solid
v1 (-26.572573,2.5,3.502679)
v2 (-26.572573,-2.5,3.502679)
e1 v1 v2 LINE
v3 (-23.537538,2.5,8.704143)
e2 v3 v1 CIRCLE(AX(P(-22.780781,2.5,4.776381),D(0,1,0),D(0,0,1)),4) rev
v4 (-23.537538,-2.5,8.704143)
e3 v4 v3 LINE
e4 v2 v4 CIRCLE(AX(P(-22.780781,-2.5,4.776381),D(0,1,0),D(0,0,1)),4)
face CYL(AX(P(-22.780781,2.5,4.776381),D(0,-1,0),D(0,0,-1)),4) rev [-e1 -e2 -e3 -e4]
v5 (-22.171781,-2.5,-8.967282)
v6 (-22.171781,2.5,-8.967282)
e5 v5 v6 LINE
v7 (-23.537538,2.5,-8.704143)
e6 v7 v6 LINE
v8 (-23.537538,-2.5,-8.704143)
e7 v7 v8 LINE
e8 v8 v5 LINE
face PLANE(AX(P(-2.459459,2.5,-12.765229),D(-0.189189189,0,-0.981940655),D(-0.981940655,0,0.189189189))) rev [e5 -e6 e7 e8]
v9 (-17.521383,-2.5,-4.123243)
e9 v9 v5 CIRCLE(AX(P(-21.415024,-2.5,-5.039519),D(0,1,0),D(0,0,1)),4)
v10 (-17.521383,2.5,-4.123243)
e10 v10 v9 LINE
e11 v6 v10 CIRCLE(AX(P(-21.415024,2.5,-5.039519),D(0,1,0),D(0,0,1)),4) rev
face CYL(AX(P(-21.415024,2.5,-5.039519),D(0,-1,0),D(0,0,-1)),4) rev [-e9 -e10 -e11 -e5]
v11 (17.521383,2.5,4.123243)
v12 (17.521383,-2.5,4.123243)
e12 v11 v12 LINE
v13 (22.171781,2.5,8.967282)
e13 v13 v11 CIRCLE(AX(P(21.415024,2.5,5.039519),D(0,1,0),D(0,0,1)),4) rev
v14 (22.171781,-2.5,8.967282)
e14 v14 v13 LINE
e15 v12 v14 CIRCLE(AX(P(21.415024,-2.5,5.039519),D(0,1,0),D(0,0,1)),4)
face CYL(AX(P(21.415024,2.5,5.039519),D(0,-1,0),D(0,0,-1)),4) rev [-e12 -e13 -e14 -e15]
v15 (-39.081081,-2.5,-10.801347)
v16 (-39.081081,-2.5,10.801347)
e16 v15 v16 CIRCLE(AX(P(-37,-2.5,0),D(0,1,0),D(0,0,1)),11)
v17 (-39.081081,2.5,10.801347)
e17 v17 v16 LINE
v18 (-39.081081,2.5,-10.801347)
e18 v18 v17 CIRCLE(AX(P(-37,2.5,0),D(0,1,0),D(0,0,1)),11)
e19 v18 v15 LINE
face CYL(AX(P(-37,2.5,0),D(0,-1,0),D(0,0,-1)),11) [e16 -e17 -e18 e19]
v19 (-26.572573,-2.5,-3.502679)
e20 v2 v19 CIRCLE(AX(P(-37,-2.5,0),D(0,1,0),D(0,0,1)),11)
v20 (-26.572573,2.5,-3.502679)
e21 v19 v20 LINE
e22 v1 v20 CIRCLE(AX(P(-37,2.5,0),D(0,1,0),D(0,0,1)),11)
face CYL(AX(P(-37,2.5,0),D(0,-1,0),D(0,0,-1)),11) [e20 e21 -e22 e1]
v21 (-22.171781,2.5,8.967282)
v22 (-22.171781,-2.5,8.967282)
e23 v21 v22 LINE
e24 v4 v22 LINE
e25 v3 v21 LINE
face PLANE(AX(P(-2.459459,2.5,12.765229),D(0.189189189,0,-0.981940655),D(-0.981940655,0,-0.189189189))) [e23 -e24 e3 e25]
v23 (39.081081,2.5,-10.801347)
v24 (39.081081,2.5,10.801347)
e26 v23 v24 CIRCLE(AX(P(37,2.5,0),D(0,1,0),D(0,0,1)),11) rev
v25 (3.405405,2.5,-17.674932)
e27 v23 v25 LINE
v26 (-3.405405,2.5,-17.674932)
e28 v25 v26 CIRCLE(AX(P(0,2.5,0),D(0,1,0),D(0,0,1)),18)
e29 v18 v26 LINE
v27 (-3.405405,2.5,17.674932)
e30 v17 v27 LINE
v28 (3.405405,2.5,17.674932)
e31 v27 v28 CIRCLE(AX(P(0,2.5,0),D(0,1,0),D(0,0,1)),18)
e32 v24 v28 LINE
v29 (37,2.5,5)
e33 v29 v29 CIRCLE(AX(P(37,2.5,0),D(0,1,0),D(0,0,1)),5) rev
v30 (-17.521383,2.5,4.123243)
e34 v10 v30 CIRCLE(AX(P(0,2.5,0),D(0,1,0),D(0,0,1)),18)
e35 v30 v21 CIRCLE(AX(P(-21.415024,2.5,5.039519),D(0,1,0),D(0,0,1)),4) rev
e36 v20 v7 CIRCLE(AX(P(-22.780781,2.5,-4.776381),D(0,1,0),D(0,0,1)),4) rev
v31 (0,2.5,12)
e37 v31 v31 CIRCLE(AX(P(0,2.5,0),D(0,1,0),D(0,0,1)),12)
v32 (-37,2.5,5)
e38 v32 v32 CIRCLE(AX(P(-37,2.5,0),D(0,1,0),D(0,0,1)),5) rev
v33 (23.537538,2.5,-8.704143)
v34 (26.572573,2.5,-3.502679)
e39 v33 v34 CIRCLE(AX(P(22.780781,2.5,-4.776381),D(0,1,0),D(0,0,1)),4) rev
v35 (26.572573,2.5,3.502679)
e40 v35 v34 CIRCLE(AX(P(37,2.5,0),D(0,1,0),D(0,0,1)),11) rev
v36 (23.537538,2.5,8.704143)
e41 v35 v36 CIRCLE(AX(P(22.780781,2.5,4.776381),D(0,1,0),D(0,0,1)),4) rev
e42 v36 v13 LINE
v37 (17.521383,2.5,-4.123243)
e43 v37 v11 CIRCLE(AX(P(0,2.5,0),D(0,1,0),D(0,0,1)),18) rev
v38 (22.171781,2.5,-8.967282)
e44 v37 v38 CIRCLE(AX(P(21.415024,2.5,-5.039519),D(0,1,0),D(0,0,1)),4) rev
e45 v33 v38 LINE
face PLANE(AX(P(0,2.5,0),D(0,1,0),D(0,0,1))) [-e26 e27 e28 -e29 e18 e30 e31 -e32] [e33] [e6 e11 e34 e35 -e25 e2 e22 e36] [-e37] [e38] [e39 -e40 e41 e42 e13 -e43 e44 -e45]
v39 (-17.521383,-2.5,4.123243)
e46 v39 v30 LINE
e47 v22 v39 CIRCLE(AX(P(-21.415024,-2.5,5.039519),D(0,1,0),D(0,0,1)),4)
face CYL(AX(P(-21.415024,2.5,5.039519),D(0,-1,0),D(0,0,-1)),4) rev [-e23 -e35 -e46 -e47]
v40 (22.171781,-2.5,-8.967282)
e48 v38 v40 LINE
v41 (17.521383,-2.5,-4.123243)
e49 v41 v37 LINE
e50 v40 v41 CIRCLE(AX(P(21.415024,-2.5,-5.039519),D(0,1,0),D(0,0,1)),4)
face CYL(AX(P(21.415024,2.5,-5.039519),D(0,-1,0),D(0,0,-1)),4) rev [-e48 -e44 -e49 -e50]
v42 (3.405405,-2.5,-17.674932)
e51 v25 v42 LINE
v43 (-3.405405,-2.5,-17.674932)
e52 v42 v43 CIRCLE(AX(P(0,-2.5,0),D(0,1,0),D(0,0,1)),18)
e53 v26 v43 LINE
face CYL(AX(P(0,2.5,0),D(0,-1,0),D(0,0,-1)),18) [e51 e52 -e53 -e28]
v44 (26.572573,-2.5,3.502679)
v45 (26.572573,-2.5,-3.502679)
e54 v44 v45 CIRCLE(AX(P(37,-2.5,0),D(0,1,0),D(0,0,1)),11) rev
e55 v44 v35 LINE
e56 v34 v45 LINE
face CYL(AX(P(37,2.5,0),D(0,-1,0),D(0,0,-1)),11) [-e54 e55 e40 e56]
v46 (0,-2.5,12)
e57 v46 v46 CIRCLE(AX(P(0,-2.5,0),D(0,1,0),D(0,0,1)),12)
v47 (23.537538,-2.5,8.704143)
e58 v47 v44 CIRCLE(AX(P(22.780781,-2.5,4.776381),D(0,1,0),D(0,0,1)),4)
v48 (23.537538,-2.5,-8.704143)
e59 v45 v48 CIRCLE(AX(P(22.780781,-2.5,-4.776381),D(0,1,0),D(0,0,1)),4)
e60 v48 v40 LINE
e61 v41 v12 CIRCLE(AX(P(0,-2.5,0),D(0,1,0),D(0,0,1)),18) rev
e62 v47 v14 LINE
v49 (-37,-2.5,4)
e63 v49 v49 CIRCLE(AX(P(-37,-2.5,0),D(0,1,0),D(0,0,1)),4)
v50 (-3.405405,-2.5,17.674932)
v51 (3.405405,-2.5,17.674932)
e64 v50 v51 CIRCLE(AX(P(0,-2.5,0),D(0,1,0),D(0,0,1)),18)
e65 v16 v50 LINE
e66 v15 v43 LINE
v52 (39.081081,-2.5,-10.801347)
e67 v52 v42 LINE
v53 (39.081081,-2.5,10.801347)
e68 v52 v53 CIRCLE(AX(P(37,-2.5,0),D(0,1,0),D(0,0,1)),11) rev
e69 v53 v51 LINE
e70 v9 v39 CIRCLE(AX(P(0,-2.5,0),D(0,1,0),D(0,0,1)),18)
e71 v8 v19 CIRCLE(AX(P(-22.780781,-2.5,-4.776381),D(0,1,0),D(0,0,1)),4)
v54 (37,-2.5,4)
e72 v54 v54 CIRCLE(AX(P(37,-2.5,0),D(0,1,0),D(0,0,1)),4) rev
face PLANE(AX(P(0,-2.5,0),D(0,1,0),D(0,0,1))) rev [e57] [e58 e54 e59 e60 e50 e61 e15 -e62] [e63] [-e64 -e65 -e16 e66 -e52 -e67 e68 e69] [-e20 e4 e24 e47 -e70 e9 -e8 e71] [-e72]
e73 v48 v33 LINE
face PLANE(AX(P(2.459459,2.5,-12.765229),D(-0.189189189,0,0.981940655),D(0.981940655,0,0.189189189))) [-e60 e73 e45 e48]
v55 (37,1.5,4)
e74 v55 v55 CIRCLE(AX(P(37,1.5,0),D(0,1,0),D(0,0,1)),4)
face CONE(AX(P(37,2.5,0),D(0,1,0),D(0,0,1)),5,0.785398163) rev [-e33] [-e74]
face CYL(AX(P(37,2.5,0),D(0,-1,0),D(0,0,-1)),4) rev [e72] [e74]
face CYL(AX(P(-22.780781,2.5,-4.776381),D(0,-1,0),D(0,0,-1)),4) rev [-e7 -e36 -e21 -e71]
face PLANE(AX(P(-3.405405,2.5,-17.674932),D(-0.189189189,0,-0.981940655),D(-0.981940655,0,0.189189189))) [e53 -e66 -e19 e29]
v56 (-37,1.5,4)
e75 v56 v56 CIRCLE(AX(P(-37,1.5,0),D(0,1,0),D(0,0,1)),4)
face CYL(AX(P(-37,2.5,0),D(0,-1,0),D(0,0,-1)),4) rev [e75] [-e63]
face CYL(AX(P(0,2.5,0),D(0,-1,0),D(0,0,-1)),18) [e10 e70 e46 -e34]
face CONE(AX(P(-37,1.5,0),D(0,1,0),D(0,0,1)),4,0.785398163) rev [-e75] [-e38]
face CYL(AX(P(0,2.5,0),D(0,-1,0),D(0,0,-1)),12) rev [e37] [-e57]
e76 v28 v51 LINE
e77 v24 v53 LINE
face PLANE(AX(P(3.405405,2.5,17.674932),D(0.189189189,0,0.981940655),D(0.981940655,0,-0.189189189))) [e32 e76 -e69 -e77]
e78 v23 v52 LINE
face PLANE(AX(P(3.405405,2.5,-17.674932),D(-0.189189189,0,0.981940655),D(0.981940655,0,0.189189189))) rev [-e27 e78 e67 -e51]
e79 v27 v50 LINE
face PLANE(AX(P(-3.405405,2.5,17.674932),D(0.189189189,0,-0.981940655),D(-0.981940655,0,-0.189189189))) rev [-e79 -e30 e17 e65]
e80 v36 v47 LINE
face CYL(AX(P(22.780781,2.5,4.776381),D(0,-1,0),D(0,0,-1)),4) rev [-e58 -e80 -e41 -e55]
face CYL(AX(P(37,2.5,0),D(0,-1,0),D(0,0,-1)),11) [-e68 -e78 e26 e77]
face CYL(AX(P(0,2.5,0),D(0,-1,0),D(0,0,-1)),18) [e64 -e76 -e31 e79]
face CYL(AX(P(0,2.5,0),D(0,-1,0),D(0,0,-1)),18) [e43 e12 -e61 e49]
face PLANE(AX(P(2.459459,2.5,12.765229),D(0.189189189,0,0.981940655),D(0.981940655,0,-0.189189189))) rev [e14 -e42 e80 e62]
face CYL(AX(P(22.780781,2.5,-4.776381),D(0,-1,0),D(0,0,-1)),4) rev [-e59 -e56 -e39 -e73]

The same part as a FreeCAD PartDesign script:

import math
import FreeCAD as App
import Part
import Sketcher


def edges_at(feature, points):
    """Names of the edges that pass closest to the given points."""
    edges = feature.Shape.Edges
    near = lambda p: min(range(len(edges)), key=lambda i: edges[i].distToShape(Part.Vertex(*p))[0])
    return sorted({f"Edge{near(p) + 1}" for p in points})

doc = App.newDocument("Part")
body = doc.addObject("PartDesign::Body", "Body")

sketch1 = doc.addObject("Sketcher::SketchObject", "Sketch")
body.addObject(sketch1)
sketch1.AttachmentSupport = (doc.XZ_Plane, [""])
sketch1.MapMode = "FlatFace"
sketch1.addGeometry([
    Part.LineSegment(App.Vector(39.1, -10.8, 0), App.Vector(3.4, -17.7, 0)),
    Part.ArcOfCircle(Part.Circle(App.Vector(0, 0, 0), App.Vector(0, 0, 1), 18), math.radians(-101), math.radians(-79)),
    Part.LineSegment(App.Vector(-3.4, -17.7, 0), App.Vector(-39.1, -10.8, 0)),
    Part.ArcOfCircle(Part.Circle(App.Vector(-37, 0, 0), App.Vector(0, 0, 1), 11), math.radians(101), math.radians(259)),
    Part.LineSegment(App.Vector(-39.1, 10.8, 0), App.Vector(-3.4, 17.7, 0)),
    Part.ArcOfCircle(Part.Circle(App.Vector(0, 0, 0), App.Vector(0, 0, 1), 18), math.radians(79), math.radians(101)),
    Part.LineSegment(App.Vector(3.4, 17.7, 0), App.Vector(39.1, 10.8, 0)),
    Part.ArcOfCircle(Part.Circle(App.Vector(37, 0, 0), App.Vector(0, 0, 1), 11), math.radians(-79), math.radians(79)),
    Part.Circle(App.Vector(-37, 0, 0), App.Vector(0, 0, 1), 4),
    Part.LineSegment(App.Vector(-14.7, 10.4, 0), App.Vector(-29.1, 7.6, 0)),
    Part.ArcOfCircle(Part.Circle(App.Vector(-37, 0, 0), App.Vector(0, 0, 1), 11), math.radians(-44), math.radians(44)),
    Part.LineSegment(App.Vector(-29.1, -7.6, 0), App.Vector(-14.7, -10.4, 0)),
    Part.ArcOfCircle(Part.Circle(App.Vector(0, 0, 0), App.Vector(0, 0, 1), 18), math.radians(145), math.radians(215)),
    Part.Circle(App.Vector(0, 0, 0), App.Vector(0, 0, 1), 12),
    Part.ArcOfCircle(Part.Circle(App.Vector(0, 0, 0), App.Vector(0, 0, 1), 18), math.radians(-35), math.radians(35)),
    Part.LineSegment(App.Vector(14.7, -10.4, 0), App.Vector(29.1, -7.6, 0)),
    Part.ArcOfCircle(Part.Circle(App.Vector(37, 0, 0), App.Vector(0, 0, 1), 11), math.radians(136), math.radians(224)),
    Part.LineSegment(App.Vector(29.1, 7.6, 0), App.Vector(14.7, 10.4, 0)),
    Part.Circle(App.Vector(37, 0, 0), App.Vector(0, 0, 1), 4),
], False)
sketch1.addConstraint([
    Sketcher.Constraint("Tangent", 0, 2, 1, 2),
    Sketcher.Constraint("Tangent", 1, 1, 2, 1),
    Sketcher.Constraint("Tangent", 2, 2, 3, 2),
    Sketcher.Constraint("Tangent", 3, 1, 4, 1),
    Sketcher.Constraint("Tangent", 4, 2, 5, 2),
    Sketcher.Constraint("Tangent", 5, 1, 6, 1),
    Sketcher.Constraint("Tangent", 6, 2, 7, 2),
    Sketcher.Constraint("Tangent", 7, 1, 0, 1),
    Sketcher.Constraint("Coincident", 9, 2, 10, 2),
    Sketcher.Constraint("Coincident", 10, 1, 11, 1),
    Sketcher.Constraint("Coincident", 11, 2, 12, 2),
    Sketcher.Constraint("Coincident", 12, 1, 9, 1),
    Sketcher.Constraint("Coincident", 14, 1, 15, 1),
    Sketcher.Constraint("Coincident", 15, 2, 16, 2),
    Sketcher.Constraint("Coincident", 16, 1, 17, 1),
    Sketcher.Constraint("Coincident", 17, 2, 14, 2),
    Sketcher.Constraint("Coincident", 1, 3, -1, 1),
    Sketcher.Constraint("Coincident", 5, 3, -1, 1),
    Sketcher.Constraint("Coincident", 12, 3, -1, 1),
    Sketcher.Constraint("Coincident", 13, 3, -1, 1),
    Sketcher.Constraint("Coincident", 14, 3, -1, 1),
    Sketcher.Constraint("Coincident", 8, 3, 3, 3),
    Sketcher.Constraint("Coincident", 10, 3, 3, 3),
    Sketcher.Constraint("Coincident", 16, 3, 7, 3),
    Sketcher.Constraint("Coincident", 18, 3, 7, 3),
    Sketcher.Constraint("Equal", 1, 5),
    Sketcher.Constraint("Equal", 3, 7),
    Sketcher.Constraint("Equal", 7, 10),
    Sketcher.Constraint("Equal", 5, 12),
    Sketcher.Constraint("Equal", 12, 14),
    Sketcher.Constraint("Equal", 10, 16),
    Sketcher.Constraint("Equal", 8, 18),
    Sketcher.Constraint("Symmetric", 3, 3, 7, 3, -1, 1),
    Sketcher.Constraint("Symmetric", 10, 1, 15, 2, -2),
    Sketcher.Constraint("Parallel", 4, 9),
    Sketcher.Constraint("Parallel", 6, 11),
    Sketcher.Constraint("Parallel", 9, 15),
    Sketcher.Constraint("Parallel", 11, 17),
    Sketcher.Constraint("Horizontal", 9, 2, 16, 1),
    Sketcher.Constraint("Vertical", 9, 2, 10, 1),
    Sketcher.Constraint("Diameter", 8, 8.0),
    Sketcher.Constraint("Diameter", 13, 24.0),
    Sketcher.Constraint("Radius", 1, 18.0),
    Sketcher.Constraint("Radius", 3, 11.0),
    Sketcher.Constraint("DistanceX", 3, 3, -1, 1, 37.0),
    Sketcher.Constraint("Distance", 9, 14.66236),
])
pad1 = doc.addObject("PartDesign::Pad", "Pad")
body.addObject(pad1)
pad1.Profile = sketch1
pad1.Length = 5
pad1.Midplane = True
doc.recompute()

fillet = doc.addObject("PartDesign::Fillet", "Fillet")
body.addObject(fillet)
fillet.Base = (pad1, edges_at(pad1, [
    (14.685, 0, 10.41),
    (29.082, 0, 7.636),
    (29.082, 0, -7.636),
    (14.685, 0, -10.41),
    (-14.685, 0, 10.41),
    (-14.685, 0, -10.41),
    (-29.082, 0, -7.636),
    (-29.082, 0, 7.636),
]))
fillet.Radius = 4
doc.recompute()

chamfer = doc.addObject("PartDesign::Chamfer", "Chamfer")
body.addObject(chamfer)
chamfer.Base = (fillet, edges_at(fillet, [(33, 2.5, 0), (-41, 2.5, 0)]))
chamfer.Size = 1

doc.recompute()
